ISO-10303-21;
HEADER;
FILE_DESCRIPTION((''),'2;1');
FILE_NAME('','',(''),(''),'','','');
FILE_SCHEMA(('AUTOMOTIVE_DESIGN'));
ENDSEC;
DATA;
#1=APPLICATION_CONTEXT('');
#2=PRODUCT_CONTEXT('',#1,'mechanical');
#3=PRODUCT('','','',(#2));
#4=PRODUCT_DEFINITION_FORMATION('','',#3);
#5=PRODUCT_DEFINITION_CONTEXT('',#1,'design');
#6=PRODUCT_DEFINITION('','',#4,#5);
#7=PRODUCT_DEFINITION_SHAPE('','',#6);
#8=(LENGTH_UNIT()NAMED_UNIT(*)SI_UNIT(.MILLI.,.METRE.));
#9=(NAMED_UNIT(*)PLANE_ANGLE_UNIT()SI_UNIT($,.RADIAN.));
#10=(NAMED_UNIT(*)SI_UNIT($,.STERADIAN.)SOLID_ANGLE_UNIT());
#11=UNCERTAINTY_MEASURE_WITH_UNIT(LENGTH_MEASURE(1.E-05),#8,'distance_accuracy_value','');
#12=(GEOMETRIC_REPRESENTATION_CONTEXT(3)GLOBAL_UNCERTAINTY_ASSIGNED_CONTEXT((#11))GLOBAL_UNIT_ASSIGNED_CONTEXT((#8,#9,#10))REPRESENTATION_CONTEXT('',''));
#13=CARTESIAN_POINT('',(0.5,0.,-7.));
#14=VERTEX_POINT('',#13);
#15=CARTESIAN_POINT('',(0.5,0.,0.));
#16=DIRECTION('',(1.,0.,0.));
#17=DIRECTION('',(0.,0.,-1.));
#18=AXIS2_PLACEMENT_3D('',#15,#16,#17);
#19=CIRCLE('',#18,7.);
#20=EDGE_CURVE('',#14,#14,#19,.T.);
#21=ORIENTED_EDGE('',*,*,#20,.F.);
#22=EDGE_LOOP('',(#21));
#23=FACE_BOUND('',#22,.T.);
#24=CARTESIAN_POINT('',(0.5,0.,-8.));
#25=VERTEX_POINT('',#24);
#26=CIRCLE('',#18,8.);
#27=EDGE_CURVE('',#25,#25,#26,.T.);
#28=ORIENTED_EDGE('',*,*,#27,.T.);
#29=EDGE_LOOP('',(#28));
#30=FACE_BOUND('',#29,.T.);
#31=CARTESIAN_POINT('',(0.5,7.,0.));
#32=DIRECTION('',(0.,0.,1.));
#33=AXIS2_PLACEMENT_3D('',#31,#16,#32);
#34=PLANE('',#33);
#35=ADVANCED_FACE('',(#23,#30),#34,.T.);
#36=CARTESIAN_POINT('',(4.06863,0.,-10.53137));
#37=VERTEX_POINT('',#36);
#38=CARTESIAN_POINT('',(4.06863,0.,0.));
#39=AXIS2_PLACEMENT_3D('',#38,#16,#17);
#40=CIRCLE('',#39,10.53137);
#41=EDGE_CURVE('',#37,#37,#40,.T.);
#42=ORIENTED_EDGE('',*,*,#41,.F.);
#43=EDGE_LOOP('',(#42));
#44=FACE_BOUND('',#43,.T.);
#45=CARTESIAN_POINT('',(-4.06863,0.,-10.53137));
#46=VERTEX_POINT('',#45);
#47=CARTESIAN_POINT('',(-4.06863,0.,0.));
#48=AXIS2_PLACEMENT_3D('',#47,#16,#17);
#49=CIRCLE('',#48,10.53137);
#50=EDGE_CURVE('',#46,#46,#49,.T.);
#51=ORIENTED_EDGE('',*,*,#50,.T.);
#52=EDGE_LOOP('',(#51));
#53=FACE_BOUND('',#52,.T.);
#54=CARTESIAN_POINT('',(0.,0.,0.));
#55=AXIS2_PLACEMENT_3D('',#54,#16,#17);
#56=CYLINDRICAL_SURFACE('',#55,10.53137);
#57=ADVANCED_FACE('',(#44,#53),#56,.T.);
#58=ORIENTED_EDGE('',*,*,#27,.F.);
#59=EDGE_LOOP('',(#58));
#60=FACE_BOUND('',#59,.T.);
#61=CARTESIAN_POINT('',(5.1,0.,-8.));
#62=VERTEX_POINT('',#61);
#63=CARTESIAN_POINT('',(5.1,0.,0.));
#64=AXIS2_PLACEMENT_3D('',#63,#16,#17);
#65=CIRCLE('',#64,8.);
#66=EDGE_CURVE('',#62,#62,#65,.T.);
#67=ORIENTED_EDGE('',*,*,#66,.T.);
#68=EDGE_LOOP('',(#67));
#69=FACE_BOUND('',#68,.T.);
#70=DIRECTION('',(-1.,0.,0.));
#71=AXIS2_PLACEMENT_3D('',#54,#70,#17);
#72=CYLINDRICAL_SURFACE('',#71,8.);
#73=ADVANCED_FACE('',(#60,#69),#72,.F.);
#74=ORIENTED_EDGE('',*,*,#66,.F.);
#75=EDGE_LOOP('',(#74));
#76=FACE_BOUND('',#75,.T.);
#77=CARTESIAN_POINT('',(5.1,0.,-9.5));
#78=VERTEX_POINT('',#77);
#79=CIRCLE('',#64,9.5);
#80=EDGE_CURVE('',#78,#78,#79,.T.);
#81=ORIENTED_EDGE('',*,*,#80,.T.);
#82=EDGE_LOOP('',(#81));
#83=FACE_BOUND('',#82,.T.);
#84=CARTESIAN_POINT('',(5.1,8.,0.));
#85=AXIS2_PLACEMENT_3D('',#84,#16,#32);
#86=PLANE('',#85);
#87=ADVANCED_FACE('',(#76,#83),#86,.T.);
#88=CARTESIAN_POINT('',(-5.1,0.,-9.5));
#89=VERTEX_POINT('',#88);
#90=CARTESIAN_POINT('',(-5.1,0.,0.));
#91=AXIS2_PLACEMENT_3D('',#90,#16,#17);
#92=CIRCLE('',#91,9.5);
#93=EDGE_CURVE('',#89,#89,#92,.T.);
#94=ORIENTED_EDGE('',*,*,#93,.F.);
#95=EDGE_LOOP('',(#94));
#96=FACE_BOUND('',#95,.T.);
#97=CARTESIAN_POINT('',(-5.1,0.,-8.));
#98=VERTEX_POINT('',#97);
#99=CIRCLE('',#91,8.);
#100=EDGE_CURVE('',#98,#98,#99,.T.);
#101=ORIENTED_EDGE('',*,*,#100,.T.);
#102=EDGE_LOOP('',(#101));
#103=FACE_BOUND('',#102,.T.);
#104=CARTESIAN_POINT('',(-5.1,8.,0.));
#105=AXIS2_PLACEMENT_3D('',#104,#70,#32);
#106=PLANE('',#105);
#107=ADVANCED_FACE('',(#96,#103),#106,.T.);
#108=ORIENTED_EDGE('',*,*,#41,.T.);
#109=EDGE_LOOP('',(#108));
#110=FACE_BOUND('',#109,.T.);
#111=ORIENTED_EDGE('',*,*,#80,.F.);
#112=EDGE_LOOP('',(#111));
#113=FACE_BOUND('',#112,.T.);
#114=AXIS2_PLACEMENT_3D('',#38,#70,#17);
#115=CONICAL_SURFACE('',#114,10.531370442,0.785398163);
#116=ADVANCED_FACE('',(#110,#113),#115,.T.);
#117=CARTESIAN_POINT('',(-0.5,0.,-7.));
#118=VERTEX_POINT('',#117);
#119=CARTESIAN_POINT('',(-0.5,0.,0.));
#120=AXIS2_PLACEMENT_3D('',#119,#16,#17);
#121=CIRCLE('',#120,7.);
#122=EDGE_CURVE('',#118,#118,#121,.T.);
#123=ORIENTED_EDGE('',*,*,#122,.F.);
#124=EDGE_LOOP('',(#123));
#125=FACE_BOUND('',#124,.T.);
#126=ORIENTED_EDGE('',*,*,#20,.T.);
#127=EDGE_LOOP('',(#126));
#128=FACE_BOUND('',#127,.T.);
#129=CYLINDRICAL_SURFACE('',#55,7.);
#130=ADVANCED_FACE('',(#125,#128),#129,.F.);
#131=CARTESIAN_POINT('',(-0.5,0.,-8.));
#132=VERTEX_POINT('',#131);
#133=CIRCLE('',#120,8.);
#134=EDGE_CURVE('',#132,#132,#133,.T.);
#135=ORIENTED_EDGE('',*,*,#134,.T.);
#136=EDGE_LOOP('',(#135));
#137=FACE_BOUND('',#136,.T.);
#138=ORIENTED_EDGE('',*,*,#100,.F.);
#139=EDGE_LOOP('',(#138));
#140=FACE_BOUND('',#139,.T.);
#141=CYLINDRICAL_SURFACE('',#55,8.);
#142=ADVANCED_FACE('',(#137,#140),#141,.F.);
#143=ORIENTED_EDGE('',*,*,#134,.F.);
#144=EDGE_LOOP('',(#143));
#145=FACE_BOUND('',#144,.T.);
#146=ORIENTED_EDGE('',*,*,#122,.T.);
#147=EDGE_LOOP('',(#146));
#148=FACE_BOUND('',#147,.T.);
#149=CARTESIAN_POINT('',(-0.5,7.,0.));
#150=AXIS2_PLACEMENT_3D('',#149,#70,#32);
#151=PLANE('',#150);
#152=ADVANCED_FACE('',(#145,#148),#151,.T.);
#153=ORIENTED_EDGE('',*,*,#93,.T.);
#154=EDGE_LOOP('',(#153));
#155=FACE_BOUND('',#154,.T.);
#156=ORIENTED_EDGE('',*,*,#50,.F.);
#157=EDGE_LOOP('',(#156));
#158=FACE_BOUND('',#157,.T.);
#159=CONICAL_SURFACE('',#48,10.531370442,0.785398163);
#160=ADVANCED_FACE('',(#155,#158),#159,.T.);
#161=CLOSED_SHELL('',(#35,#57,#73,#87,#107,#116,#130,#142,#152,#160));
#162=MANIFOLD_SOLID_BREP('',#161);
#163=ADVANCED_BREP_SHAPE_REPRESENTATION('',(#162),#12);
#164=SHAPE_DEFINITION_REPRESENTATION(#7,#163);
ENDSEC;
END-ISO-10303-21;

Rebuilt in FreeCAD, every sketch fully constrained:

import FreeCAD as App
import Part
import Sketcher
Q = App.Units.Quantity


def add_polygon(sketch, points):
    """Adds a closed chain of lines whose ends are joined by coincident constraints."""
    first, n = sketch.GeometryCount, len(points)
    for a, b in zip(points, points[1:] + points[:1]):
        sketch.addGeometry(Part.LineSegment(App.Vector(*a, 0), App.Vector(*b, 0)), False)
    for i in range(n):
        sketch.addConstraint(Sketcher.Constraint("Coincident", first + i, 2, first + (i + 1) % n, 1))

doc = App.newDocument("Part")
params = doc.addObject("Spreadsheet::Sheet", "Params")
for row, (alias, value) in enumerate([
    ("sketch1_height", "1 mm"),
    ("sketch1_width", "0.5 mm"),
    ("sketch1_width2", "4.6 mm"),
    ("sketch1_height2", "1.5 mm"),
    ("revolution_angle", "360 deg"),
], start=1):
    params.set(f"A{row}", alias)
    params.set(f"B{row}", "=" + value)
    params.setAlias(f"B{row}", alias)

body = doc.addObject("PartDesign::Body", "Body")

sketch1 = body.newObject("Sketcher::SketchObject", "Sketch")
sketch1.AttachmentSupport = (doc.getObject("XY_Plane"), [""])
sketch1.MapMode = "FlatFace"
add_polygon(sketch1, [(-0.5, 7), (0, 7), (0, 10.5), (-4.1, 10.5), (-5.1, 9.5), (-5.1, 8), (-0.5, 8)])
sketch1.addConstraint(Sketcher.Constraint("Horizontal", 0))
sketch1.addConstraint(Sketcher.Constraint("Vertical", 1))
sketch1.addConstraint(Sketcher.Constraint("Horizontal", 2))
sketch1.addConstraint(Sketcher.Constraint("Vertical", 4))
sketch1.addConstraint(Sketcher.Constraint("Horizontal", 5))
sketch1.addConstraint(Sketcher.Constraint("Vertical", 6))
sketch1.addConstraint(Sketcher.Constraint("PointOnObject", 0, 2, -2))
sketch1.addConstraint(Sketcher.Constraint("DistanceY", 6, 2, 6, 1, Q("1 mm")))
sketch1.addConstraint(Sketcher.Constraint("Angle", 3, Q("-135 deg")))
sketch1.addConstraint(Sketcher.Constraint("DistanceX", 0, 1, 0, 2, Q("0.5 mm")))
sketch1.addConstraint(Sketcher.Constraint("DistanceX", 5, 1, 5, 2, Q("4.6 mm")))
sketch1.addConstraint(Sketcher.Constraint("DistanceY", 4, 2, 4, 1, Q("1.5 mm")))
sketch1.addConstraint(Sketcher.Constraint("DistanceY", -1, 1, 0, 2, Q("7 mm")))
sketch1.addConstraint(Sketcher.Constraint("DistanceX", 2, 2, 2, 1, Q("4.06863 mm")))
sketch1.setExpression("Constraints[14]", "Params.sketch1_height")
sketch1.setExpression("Constraints[16]", "Params.sketch1_width")
sketch1.setExpression("Constraints[17]", "Params.sketch1_width2")
sketch1.setExpression("Constraints[18]", "Params.sketch1_height2")
revolution = body.newObject("PartDesign::Revolution", "Revolution")
revolution.Profile = sketch1
revolution.ReferenceAxis = (sketch1, ["H_Axis"])
revolution.setExpression("Angle", "Params.revolution_angle")
doc.recompute()

mirrored = body.newObject("PartDesign::Mirrored", "Mirrored")
mirrored.Originals = [revolution]
mirrored.MirrorPlane = (doc.getObject("YZ_Plane"), [""])
body.Tip = mirrored

doc.recompute()
